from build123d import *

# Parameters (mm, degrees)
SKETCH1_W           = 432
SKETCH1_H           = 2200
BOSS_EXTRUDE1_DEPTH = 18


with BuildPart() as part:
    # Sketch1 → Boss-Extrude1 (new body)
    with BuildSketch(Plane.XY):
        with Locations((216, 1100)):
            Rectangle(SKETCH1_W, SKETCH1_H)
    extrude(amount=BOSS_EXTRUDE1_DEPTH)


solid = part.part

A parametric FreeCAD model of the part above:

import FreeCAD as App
import Part
import Sketcher

V = App.Vector
Q = App.Units.Quantity


def add_polygon(sketch, points):
    """Adds a closed chain of lines whose ends are joined by coincident constraints."""
    first, n = sketch.GeometryCount, len(points)
    for a, b in zip(points, points[1:] + points[:1]):
        sketch.addGeometry(Part.LineSegment(App.Vector(*a, 0), App.Vector(*b, 0)), False)
    for i in range(n):
        sketch.addConstraint(Sketcher.Constraint("Coincident", first + i, 2, first + (i + 1) % n, 1))

doc = App.newDocument("Part")
body = doc.addObject("PartDesign::Body", "Body")

sketch1 = body.newObject("Sketcher::SketchObject", "Sketch")
sketch1.AttachmentSupport = (doc.getObject("XY_Plane"), [""])
sketch1.MapMode = "FlatFace"
add_polygon(sketch1, [(0, 2200), (0, 0), (432, 0), (432, 2200)])
sketch1.addConstraint([
    Sketcher.Constraint("Vertical", 0),
    Sketcher.Constraint("Horizontal", 1),
    Sketcher.Constraint("Vertical", 2),
    Sketcher.Constraint("Horizontal", 3),
    Sketcher.Constraint("Coincident", 0, 2, -1, 1),
    Sketcher.Constraint("DistanceX", 1, 1, 1, 2, Q("432 mm")),
    Sketcher.Constraint("DistanceY", 0, 2, 0, 1, Q("2200 mm")),
])
pad1 = body.newObject("PartDesign::Pad", "Pad")
pad1.Profile = sketch1
pad1.Length = 18

doc.recompute()
